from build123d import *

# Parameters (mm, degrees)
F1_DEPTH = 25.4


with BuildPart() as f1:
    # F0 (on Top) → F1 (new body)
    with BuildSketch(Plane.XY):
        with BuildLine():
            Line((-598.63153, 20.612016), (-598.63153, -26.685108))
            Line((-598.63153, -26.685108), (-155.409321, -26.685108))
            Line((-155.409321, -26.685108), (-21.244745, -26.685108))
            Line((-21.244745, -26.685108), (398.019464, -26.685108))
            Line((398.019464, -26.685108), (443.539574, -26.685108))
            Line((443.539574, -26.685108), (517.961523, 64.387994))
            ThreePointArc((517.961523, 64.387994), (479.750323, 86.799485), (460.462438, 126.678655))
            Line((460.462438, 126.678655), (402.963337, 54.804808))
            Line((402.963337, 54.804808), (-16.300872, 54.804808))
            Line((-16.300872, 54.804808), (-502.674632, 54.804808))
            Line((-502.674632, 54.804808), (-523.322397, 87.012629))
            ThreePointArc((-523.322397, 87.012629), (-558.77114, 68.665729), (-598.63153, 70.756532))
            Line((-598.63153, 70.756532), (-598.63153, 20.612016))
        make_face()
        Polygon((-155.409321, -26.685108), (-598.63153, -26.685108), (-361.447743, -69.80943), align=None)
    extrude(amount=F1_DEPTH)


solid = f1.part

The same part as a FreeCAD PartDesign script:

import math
import FreeCAD as App
import Part
import Sketcher
from FreeCAD import Vector
Q = App.Units.Quantity

doc = App.newDocument("Part")
body = doc.addObject("PartDesign::Body", "Body")

sketch1 = body.newObject("Sketcher::SketchObject", "Sketch")
sketch1.AttachmentSupport = (doc.getObject("XY_Plane"), [""])
sketch1.MapMode = "FlatFace"
sketch1.addGeometry([
    Part.LineSegment(Vector(-155, -27, 0), Vector(444, -27, 0)),
    Part.LineSegment(Vector(444, -27, 0), Vector(518, 64, 0)),
    Part.ArcOfCircle(Part.Circle(Vector(536, 138, 0), Vector(0, 0, 1), 76), math.radians(-171), math.radians(-103)),
    Part.LineSegment(Vector(460, 127, 0), Vector(403, 55, 0)),
    Part.LineSegment(Vector(403, 55, 0), Vector(-503, 55, 0)),
    Part.LineSegment(Vector(-503, 55, 0), Vector(-523, 87, 0)),
    Part.ArcOfCircle(Part.Circle(Vector(-575, 143, 0), Vector(0, 0, 1), 76), math.radians(-108), math.radians(-47)),
    Part.LineSegment(Vector(-599, 71, 0), Vector(-599, -27, 0)),
    Part.LineSegment(Vector(-599, -27, 0), Vector(-361, -70, 0)),
    Part.LineSegment(Vector(-361, -70, 0), Vector(-155, -27, 0)),
], False)
sketch1.addConstraint([
    Sketcher.Constraint("Coincident", 0, 2, 1, 1),
    Sketcher.Constraint("Coincident", 1, 2, 2, 2),
    Sketcher.Constraint("Coincident", 2, 1, 3, 1),
    Sketcher.Constraint("Coincident", 3, 2, 4, 1),
    Sketcher.Constraint("Coincident", 4, 2, 5, 1),
    Sketcher.Constraint("Coincident", 5, 2, 6, 2),
    Sketcher.Constraint("Coincident", 6, 1, 7, 1),
    Sketcher.Constraint("Coincident", 7, 2, 8, 1),
    Sketcher.Constraint("Coincident", 8, 2, 9, 1),
    Sketcher.Constraint("Coincident", 9, 2, 0, 1),
    Sketcher.Constraint("Horizontal", 0),
    Sketcher.Constraint("Horizontal", 4),
    Sketcher.Constraint("Vertical", 7),
    Sketcher.Constraint("Horizontal", 0, 2, 7, 2),
    Sketcher.Constraint("Radius", 2, Q("3.0000001 in")),
    Sketcher.Constraint("Radius", 6, Q("2.9999999 in")),
    Sketcher.Constraint("DistanceX", 4, 2, 4, 1, Q("905.637969 mm")),
    Sketcher.Constraint("DistanceY", 7, 2, 7, 1, Q("97.44164 mm")),
    Sketcher.Constraint("DistanceX", 6, 3, 0, 2, Q("1018.388799 mm")),
    Sketcher.Constraint("DistanceY", 0, 2, 6, 3, Q("169.835298 mm")),
    Sketcher.Constraint("DistanceX", 3, 2, 2, 1, Q("57.499101 mm")),
    Sketcher.Constraint("DistanceX", 6, 1, 4, 2, Q("95.956898 mm")),
    Sketcher.Constraint("Distance", 3, Q("92.043449 mm")),
    Sketcher.Constraint("Distance", 5, Q("38.257992 mm")),
    Sketcher.Constraint("Distance", 9, Q("210.503061 mm")),
    Sketcher.Constraint("DistanceX", 0, 1, 0, 2, Q("598.948895 mm")),
    Sketcher.Constraint("DistanceX", -1, 1, 2, 3, Q("535.742341 mm")),
    Sketcher.Constraint("DistanceY", -1, 1, 6, 3, Q("143.15019 mm")),
    Sketcher.Constraint("DistanceX", -1, 1, 2, 1, Q("460.462438 mm")),
    Sketcher.Constraint("DistanceY", -1, 1, 5, 2, Q("87.012629 mm")),
    Sketcher.Constraint("DistanceY", 8, 2, -1, 1, Q("69.80943 mm")),
    Sketcher.Constraint("DistanceX", 0, 2, 1, 2, Q("74.421949 mm")),
])
pad1 = body.newObject("PartDesign::Pad", "Pad")
pad1.Profile = sketch1
pad1.Length = Q("1 in")

doc.recompute()
